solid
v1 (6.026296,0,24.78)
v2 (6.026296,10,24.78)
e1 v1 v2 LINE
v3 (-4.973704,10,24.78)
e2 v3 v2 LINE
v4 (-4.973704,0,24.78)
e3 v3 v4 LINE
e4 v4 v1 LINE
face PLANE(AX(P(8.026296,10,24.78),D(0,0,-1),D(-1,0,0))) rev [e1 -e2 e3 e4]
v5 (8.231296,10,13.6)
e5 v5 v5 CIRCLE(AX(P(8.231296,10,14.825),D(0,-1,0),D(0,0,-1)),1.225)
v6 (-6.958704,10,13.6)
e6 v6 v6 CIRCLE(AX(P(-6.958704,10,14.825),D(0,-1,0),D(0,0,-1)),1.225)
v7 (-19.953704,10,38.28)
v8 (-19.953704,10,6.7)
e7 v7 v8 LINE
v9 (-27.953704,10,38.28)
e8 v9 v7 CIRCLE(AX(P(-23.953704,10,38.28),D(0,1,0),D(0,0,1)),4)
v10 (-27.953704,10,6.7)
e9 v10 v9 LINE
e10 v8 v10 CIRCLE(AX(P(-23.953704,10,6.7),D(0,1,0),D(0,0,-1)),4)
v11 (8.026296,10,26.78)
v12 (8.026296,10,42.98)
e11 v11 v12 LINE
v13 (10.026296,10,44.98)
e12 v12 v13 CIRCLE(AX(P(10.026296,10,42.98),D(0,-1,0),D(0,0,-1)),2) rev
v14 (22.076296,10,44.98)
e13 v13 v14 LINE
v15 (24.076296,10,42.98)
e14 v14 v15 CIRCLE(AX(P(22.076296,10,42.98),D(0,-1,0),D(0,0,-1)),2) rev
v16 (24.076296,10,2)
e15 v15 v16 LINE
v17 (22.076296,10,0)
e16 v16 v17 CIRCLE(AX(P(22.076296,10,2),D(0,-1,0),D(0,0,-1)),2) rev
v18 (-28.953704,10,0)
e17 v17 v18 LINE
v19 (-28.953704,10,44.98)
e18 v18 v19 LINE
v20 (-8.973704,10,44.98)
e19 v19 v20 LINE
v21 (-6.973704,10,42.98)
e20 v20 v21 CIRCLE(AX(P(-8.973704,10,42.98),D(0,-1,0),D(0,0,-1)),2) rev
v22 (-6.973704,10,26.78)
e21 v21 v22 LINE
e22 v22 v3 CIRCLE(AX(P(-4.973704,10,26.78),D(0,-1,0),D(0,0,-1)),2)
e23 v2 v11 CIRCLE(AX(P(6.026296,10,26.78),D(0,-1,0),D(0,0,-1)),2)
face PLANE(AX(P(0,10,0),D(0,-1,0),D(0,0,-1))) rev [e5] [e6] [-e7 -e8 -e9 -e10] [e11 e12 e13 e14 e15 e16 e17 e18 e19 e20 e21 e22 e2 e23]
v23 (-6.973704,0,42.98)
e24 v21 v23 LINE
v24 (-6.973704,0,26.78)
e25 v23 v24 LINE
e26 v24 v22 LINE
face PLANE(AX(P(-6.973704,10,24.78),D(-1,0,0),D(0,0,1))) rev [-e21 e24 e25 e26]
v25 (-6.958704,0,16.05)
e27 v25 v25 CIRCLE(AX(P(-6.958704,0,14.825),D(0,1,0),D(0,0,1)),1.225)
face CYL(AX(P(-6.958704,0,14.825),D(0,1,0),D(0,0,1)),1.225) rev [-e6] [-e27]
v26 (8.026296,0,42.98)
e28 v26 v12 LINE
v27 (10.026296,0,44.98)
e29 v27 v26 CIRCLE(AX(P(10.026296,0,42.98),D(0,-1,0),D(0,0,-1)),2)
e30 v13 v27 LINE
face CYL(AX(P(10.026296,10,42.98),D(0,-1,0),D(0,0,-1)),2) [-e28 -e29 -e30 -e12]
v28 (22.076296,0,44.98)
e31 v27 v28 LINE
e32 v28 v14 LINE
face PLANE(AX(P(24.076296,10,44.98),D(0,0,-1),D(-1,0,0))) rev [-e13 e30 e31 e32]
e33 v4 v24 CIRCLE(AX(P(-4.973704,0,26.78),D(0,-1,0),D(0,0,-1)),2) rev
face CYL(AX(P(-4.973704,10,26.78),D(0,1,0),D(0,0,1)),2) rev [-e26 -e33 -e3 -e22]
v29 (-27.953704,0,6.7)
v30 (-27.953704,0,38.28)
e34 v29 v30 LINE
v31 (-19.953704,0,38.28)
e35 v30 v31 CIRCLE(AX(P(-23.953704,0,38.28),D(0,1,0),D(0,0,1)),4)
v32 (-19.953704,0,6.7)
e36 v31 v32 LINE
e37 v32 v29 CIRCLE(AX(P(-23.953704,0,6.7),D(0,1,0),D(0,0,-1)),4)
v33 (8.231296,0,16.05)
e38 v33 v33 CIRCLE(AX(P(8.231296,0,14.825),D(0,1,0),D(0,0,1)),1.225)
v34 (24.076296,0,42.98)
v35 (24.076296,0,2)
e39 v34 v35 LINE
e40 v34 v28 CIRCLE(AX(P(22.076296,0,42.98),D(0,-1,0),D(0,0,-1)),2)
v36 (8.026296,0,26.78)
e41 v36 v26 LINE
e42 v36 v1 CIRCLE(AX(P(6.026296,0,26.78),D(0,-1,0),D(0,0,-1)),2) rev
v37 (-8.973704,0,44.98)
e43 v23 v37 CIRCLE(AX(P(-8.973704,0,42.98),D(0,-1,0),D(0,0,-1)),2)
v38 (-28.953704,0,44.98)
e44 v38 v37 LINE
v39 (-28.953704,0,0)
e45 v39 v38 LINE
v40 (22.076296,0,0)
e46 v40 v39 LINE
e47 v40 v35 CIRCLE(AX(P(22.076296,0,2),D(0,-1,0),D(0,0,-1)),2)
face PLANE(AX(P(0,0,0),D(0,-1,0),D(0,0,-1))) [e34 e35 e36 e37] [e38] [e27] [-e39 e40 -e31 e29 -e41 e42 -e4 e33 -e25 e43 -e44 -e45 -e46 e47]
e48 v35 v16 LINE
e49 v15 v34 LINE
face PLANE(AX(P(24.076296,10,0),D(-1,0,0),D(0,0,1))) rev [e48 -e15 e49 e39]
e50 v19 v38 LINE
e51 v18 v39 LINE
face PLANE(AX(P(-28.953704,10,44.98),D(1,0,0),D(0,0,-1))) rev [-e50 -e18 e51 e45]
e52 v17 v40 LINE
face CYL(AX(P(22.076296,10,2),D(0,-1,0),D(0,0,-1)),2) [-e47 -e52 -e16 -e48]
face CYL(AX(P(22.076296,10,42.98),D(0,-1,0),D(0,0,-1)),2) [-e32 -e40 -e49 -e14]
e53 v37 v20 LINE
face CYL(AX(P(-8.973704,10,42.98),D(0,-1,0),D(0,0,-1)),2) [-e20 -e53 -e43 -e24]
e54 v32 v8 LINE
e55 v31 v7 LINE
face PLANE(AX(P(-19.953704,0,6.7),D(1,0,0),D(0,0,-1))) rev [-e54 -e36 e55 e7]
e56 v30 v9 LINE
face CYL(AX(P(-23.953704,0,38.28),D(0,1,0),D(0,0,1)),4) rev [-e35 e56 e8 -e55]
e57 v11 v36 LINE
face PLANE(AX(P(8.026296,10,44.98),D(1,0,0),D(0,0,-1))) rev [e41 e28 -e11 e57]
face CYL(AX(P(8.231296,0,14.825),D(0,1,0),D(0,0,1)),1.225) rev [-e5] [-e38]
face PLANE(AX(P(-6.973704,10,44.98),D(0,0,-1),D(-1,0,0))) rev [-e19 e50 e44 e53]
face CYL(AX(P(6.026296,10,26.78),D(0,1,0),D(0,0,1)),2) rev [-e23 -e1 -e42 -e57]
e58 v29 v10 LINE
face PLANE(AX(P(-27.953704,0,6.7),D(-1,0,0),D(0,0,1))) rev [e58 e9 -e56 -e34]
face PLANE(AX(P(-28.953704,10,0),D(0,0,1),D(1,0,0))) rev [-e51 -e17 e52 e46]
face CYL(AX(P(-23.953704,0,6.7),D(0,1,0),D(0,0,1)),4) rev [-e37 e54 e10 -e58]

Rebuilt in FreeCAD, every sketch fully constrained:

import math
import FreeCAD as App
import Part
import Sketcher
from FreeCAD import Vector
Q = App.Units.Quantity


def edges_at(feature, points):
    """Names of the edges that pass closest to the given points."""
    edges = feature.Shape.Edges
    near = lambda p: min(range(len(edges)), key=lambda i: edges[i].distToShape(Part.Vertex(*p))[0])
    return sorted({f"Edge{near(p) + 1}" for p in points})


def add_polygon(sketch, points):
    """Adds a closed chain of lines whose ends are joined by coincident constraints."""
    first, n = sketch.GeometryCount, len(points)
    for a, b in zip(points, points[1:] + points[:1]):
        sketch.addGeometry(Part.LineSegment(App.Vector(*a, 0), App.Vector(*b, 0)), False)
    for i in range(n):
        sketch.addConstraint(Sketcher.Constraint("Coincident", first + i, 2, first + (i + 1) % n, 1))

doc = App.newDocument("Part")
params = doc.addObject("Spreadsheet::Sheet", "Params")
for row, (alias, value) in enumerate([
    ("sketch1_width", "15 mm"),
    ("sketch1_height", "20.2 mm"),
    ("sketch1_width2", "53.03 mm"),
    ("sketch1_width3", "21.98 mm"),
    ("sketch1_height2", "44.98 mm"),
    ("pad1_length", "10 mm"),
    ("fillet_radius", "2 mm"),
    ("fillet2_radius", "2 mm"),
    ("fillet3_radius", "2 mm"),
    ("fillet4_radius", "2 mm"),
    ("fillet5_radius", "2 mm"),
    ("fillet6_radius", "2 mm"),
    ("sketch2_diameter", "2.45 mm"),
    ("sketch3_radius", "4 mm"),
    ("sketch3_height", "31.58 mm"),
    ("pocket2_length", "10 mm"),
], start=1):
    params.set(f"A{row}", alias)
    params.set(f"B{row}", "=" + value)
    params.setAlias(f"B{row}", alias)

body = doc.addObject("PartDesign::Body", "Body")

# Sketch on XZ plane
sketch1 = body.newObject("Sketcher::SketchObject", "Sketch")
sketch1.AttachmentSupport = (doc.getObject("XZ_Plane"), [""])
sketch1.MapMode = "FlatFace"
add_polygon(sketch1, [(24, 0), (-29, 0), (-29, 45), (-7, 45), (-7, 25), (8, 25), (8, 45), (24, 45)])  # lines 0-7
sketch1.addConstraint(Sketcher.Constraint("Horizontal", 0))
sketch1.addConstraint(Sketcher.Constraint("Vertical", 1))
sketch1.addConstraint(Sketcher.Constraint("Horizontal", 2))
sketch1.addConstraint(Sketcher.Constraint("Vertical", 3))
sketch1.addConstraint(Sketcher.Constraint("Horizontal", 4))
sketch1.addConstraint(Sketcher.Constraint("Vertical", 5))
sketch1.addConstraint(Sketcher.Constraint("Horizontal", 6))
sketch1.addConstraint(Sketcher.Constraint("Vertical", 7))
sketch1.addConstraint(Sketcher.Constraint("PointOnObject", 0, 2, -1))
sketch1.addConstraint(Sketcher.Constraint("Horizontal", 2, 2, 5, 2))
sketch1.addConstraint(Sketcher.Constraint("DistanceX", 4, 1, 4, 2, Q("15 mm")))
sketch1.addConstraint(Sketcher.Constraint("DistanceY", 3, 2, 3, 1, Q("20.2 mm")))
sketch1.addConstraint(Sketcher.Constraint("DistanceX", 0, 2, 0, 1, Q("53.03 mm")))
sketch1.addConstraint(Sketcher.Constraint("DistanceX", 2, 1, 2, 2, Q("21.98 mm")))
sketch1.addConstraint(Sketcher.Constraint("DistanceY", 1, 1, 1, 2, Q("44.98 mm")))
sketch1.addConstraint(Sketcher.Constraint("DistanceX", 0, 2, -1, 1, Q("28.953704 mm")))
sketch1.setExpression("Constraints[18]", "Params.sketch1_width")
sketch1.setExpression("Constraints[19]", "Params.sketch1_height")
sketch1.setExpression("Constraints[20]", "Params.sketch1_width2")
sketch1.setExpression("Constraints[21]", "Params.sketch1_width3")
sketch1.setExpression("Constraints[22]", "Params.sketch1_height2")
pad1 = body.newObject("PartDesign::Pad", "Pad")
pad1.Profile = sketch1
pad1.setExpression("Length", "Params.pad1_length")
pad1.Reversed = True
doc.recompute()

fillet = body.newObject("PartDesign::Fillet", "Fillet")
fillet.Base = (pad1, edges_at(pad1, [(-6.974, 5, 24.78)]))
fillet.setExpression("Radius", "Params.fillet_radius")
doc.recompute()

fillet2 = body.newObject("PartDesign::Fillet", "Fillet001")
fillet2.Base = (fillet, edges_at(fillet, [(8.026, 5, 24.78)]))
fillet2.setExpression("Radius", "Params.fillet2_radius")
doc.recompute()

fillet3 = body.newObject("PartDesign::Fillet", "Fillet002")
fillet3.Base = (fillet2, edges_at(fillet2, [(-6.974, 5, 44.98)]))
fillet3.setExpression("Radius", "Params.fillet3_radius")
doc.recompute()

fillet4 = body.newObject("PartDesign::Fillet", "Fillet003")
fillet4.Base = (fillet3, edges_at(fillet3, [(8.026, 5, 44.98)]))
fillet4.setExpression("Radius", "Params.fillet4_radius")
doc.recompute()

fillet5 = body.newObject("PartDesign::Fillet", "Fillet004")
fillet5.Base = (fillet4, edges_at(fillet4, [(24.076, 5, 0)]))
fillet5.setExpression("Radius", "Params.fillet5_radius")
doc.recompute()

fillet6 = body.newObject("PartDesign::Fillet", "Fillet005")
fillet6.Base = (fillet5, edges_at(fillet5, [(24.076, 5, 44.98)]))
fillet6.setExpression("Radius", "Params.fillet6_radius")

# Sketch on XZ plane
sketch2 = body.newObject("Sketcher::SketchObject", "Sketch001")
sketch2.AttachmentSupport = (doc.getObject("XZ_Plane"), [""])
sketch2.MapMode = "FlatFace"
sketch2.AttachmentOffset = App.Placement(Vector(0, 0, -10), App.Rotation())
sketch2.addGeometry(Part.Circle(Vector(-7, 14.8, 0), Vector(0, 0, 1), 1.2), False)
sketch2.addGeometry(Part.Circle(Vector(8.2, 14.8, 0), Vector(0, 0, 1), 1.2), False)
sketch2.addConstraint(Sketcher.Constraint("Equal", 0, 1))
sketch2.addConstraint(Sketcher.Constraint("Horizontal", 0, 3, 1, 3))
sketch2.addConstraint(Sketcher.Constraint("Diameter", 0, Q("2.45 mm")))
sketch2.addConstraint(Sketcher.Constraint("DistanceX", 0, 3, 1, 3, Q("15.19 mm")))
sketch2.addConstraint(Sketcher.Constraint("DistanceY", -1, 1, 0, 3, Q("14.825 mm")))
sketch2.addConstraint(Sketcher.Constraint("DistanceX", 0, 3, -1, 1, Q("6.958704 mm")))
sketch2.setExpression("Constraints[2]", "Params.sketch2_diameter")
pocket1 = body.newObject("PartDesign::Pocket", "Pocket")
pocket1.Profile = sketch2
pocket1.Type = "ThroughAll"
pocket1.Midplane = True

# Sketch on XZ plane
sketch3 = body.newObject("Sketcher::SketchObject", "Sketch002")
sketch3.AttachmentSupport = (doc.getObject("XZ_Plane"), [""])
sketch3.MapMode = "FlatFace"
sketch3.AttachmentOffset = App.Placement(Vector(0, 0, -10), App.Rotation())
sketch3.addGeometry(Part.LineSegment(Vector(-28, 6.7, 0), Vector(-28, 38.3, 0)), False)
sketch3.addGeometry(Part.ArcOfCircle(Part.Circle(Vector(-24, 38.3, 0), Vector(0, 0, 1), 4), math.radians(0), math.radians(180)), False)
sketch3.addGeometry(Part.LineSegment(Vector(-20, 38.3, 0), Vector(-20, 6.7, 0)), False)
sketch3.addGeometry(Part.ArcOfCircle(Part.Circle(Vector(-24, 6.7, 0), Vector(0, 0, 1), 4), math.radians(180), math.radians(360)), False)
sketch3.addConstraint(Sketcher.Constraint("Tangent", 0, 2, 1, 2))
sketch3.addConstraint(Sketcher.Constraint("Tangent", 1, 1, 2, 1))
sketch3.addConstraint(Sketcher.Constraint("Tangent", 2, 2, 3, 2))
sketch3.addConstraint(Sketcher.Constraint("Tangent", 3, 1, 0, 1))
sketch3.addConstraint(Sketcher.Constraint("Vertical", 0))
sketch3.addConstraint(Sketcher.Constraint("Vertical", 2))
sketch3.addConstraint(Sketcher.Constraint("Radius", 1, Q("4 mm")))
sketch3.addConstraint(Sketcher.Constraint("DistanceY", 0, 1, 0, 2, Q("31.58 mm")))
sketch3.addConstraint(Sketcher.Constraint("DistanceY", -1, 1, 3, 3, Q("6.7 mm")))
sketch3.addConstraint(Sketcher.Constraint("DistanceX", 1, 3, -1, 1, Q("23.953704 mm")))
sketch3.setExpression("Constraints[6]", "Params.sketch3_radius")
sketch3.setExpression("Constraints[7]", "Params.sketch3_height")
pocket2 = body.newObject("PartDesign::Pocket", "Pocket001")
pocket2.Profile = sketch3
pocket2.setExpression("Length", "Params.pocket2_length")
pocket2.Reversed = True

doc.recompute()
